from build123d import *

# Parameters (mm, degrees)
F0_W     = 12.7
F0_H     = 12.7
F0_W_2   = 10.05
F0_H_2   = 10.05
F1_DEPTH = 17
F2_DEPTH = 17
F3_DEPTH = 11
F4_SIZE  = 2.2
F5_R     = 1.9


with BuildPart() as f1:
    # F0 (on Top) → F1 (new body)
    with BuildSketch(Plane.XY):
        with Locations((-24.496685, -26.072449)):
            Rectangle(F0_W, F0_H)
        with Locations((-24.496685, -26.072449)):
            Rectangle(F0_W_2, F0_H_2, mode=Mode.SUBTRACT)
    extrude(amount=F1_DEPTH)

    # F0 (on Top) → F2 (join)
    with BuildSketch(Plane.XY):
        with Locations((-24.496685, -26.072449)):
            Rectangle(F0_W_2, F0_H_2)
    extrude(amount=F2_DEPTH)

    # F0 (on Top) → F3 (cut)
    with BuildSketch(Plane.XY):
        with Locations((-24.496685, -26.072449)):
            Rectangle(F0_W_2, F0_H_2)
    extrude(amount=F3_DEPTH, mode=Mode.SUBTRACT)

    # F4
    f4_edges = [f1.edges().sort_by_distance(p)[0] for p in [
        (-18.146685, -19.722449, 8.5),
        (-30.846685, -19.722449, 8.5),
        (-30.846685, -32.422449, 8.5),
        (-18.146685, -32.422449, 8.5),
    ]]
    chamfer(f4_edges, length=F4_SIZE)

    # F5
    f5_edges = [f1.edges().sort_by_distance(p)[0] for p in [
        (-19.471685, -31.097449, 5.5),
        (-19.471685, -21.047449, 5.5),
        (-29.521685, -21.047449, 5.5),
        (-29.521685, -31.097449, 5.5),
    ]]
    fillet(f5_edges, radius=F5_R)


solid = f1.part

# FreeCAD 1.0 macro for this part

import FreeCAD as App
import Part
import Sketcher

V = App.Vector


def edges_at(feature, points):
    """Names of the edges that pass closest to the given points."""
    edges = feature.Shape.Edges
    near = lambda p: min(range(len(edges)), key=lambda i: edges[i].distToShape(Part.Vertex(*p))[0])
    return sorted({f"Edge{near(p) + 1}" for p in points})


def add_polygon(sketch, points):
    """Adds a closed chain of lines whose ends are joined by coincident constraints."""
    first, n = sketch.GeometryCount, len(points)
    for a, b in zip(points, points[1:] + points[:1]):
        sketch.addGeometry(Part.LineSegment(App.Vector(*a, 0), App.Vector(*b, 0)), False)
    for i in range(n):
        sketch.addConstraint(Sketcher.Constraint("Coincident", first + i, 2, first + (i + 1) % n, 1))

doc = App.newDocument("Part")
params = doc.addObject("Spreadsheet::Sheet", "Params")
for row, (alias, value) in enumerate([
    ("sketch1_width", "12.7 mm"),
    ("sketch1_width2", "10.05 mm"),
    ("pad1_length", "17 mm"),
    ("sketch2_width", "10.05 mm"),
    ("pad2_length", "17 mm"),
    ("sketch3_width", "10.05 mm"),
    ("pocket1_length", "11 mm"),
    ("chamfer_size", "2.2 mm"),
    ("fillet_radius", "1.9 mm"),
], start=1):
    params.set(f"A{row}", alias)
    params.set(f"B{row}", "=" + value)
    params.setAlias(f"B{row}", alias)

body = doc.addObject("PartDesign::Body", "Body")

sketch1 = body.newObject("Sketcher::SketchObject", "Sketch")
sketch1.AttachmentSupport = (doc.getObject("XY_Plane"), [""])
sketch1.MapMode = "FlatFace"
add_polygon(sketch1, [(-30.846685, -19.722449), (-30.846685, -32.422449), (-18.146685, -32.422449), (-18.146685, -19.722449)])
add_polygon(sketch1, [(-19.471685, -31.097449), (-29.521685, -31.097449), (-29.521685, -21.047449), (-19.471685, -21.047449)])
sketch1.addConstraint(Sketcher.Constraint("Vertical", 0))
sketch1.addConstraint(Sketcher.Constraint("Horizontal", 1))
sketch1.addConstraint(Sketcher.Constraint("Vertical", 2))
sketch1.addConstraint(Sketcher.Constraint("Horizontal", 3))
sketch1.addConstraint(Sketcher.Constraint("Horizontal", 4))
sketch1.addConstraint(Sketcher.Constraint("Vertical", 5))
sketch1.addConstraint(Sketcher.Constraint("Horizontal", 6))
sketch1.addConstraint(Sketcher.Constraint("Vertical", 7))
sketch1.addConstraint(Sketcher.Constraint("Equal", 3, 0))
sketch1.addConstraint(Sketcher.Constraint("Equal", 6, 5))
sketch1.addConstraint(Sketcher.Constraint("DistanceX", 1, 1, 1, 2, 12.7))
sketch1.addConstraint(Sketcher.Constraint("DistanceX", 4, 2, 4, 1, 10.05))
sketch1.addConstraint(Sketcher.Constraint("DistanceX", 0, 2, 4, 2, 1.325))
sketch1.addConstraint(Sketcher.Constraint("DistanceY", 0, 2, 4, 2, 1.325))
sketch1.addConstraint(Sketcher.Constraint("DistanceY", 0, 2, -1, 1, 32.422449))
sketch1.addConstraint(Sketcher.Constraint("DistanceX", 0, 2, -1, 1, 30.846685))
sketch1.setExpression("Constraints[18]", "Params.sketch1_width")
sketch1.setExpression("Constraints[19]", "Params.sketch1_width2")
pad1 = body.newObject("PartDesign::Pad", "Pad")
pad1.Profile = sketch1
pad1.setExpression("Length", "Params.pad1_length")

sketch2 = body.newObject("Sketcher::SketchObject", "Sketch001")
sketch2.AttachmentSupport = (doc.getObject("XY_Plane"), [""])
sketch2.MapMode = "FlatFace"
add_polygon(sketch2, [(-29.521685, -21.047449), (-29.521685, -31.097449), (-19.471685, -31.097449), (-19.471685, -21.047449)])
sketch2.addConstraint(Sketcher.Constraint("Vertical", 0))
sketch2.addConstraint(Sketcher.Constraint("Horizontal", 1))
sketch2.addConstraint(Sketcher.Constraint("Vertical", 2))
sketch2.addConstraint(Sketcher.Constraint("Horizontal", 3))
sketch2.addConstraint(Sketcher.Constraint("Equal", 3, 0))
sketch2.addConstraint(Sketcher.Constraint("DistanceX", 1, 1, 1, 2, 10.05))
sketch2.addConstraint(Sketcher.Constraint("DistanceY", 0, 2, -1, 1, 31.097449))
sketch2.addConstraint(Sketcher.Constraint("DistanceX", 0, 2, -1, 1, 29.521685))
sketch2.setExpression("Constraints[9]", "Params.sketch2_width")
pad2 = body.newObject("PartDesign::Pad", "Pad001")
pad2.Profile = sketch2
pad2.setExpression("Length", "Params.pad2_length")

sketch3 = body.newObject("Sketcher::SketchObject", "Sketch002")
sketch3.AttachmentSupport = (doc.getObject("XY_Plane"), [""])
sketch3.MapMode = "FlatFace"
add_polygon(sketch3, [(-29.521685, -21.047449), (-29.521685, -31.097449), (-19.471685, -31.097449), (-19.471685, -21.047449)])
sketch3.addConstraint(Sketcher.Constraint("Vertical", 0))
sketch3.addConstraint(Sketcher.Constraint("Horizontal", 1))
sketch3.addConstraint(Sketcher.Constraint("Vertical", 2))
sketch3.addConstraint(Sketcher.Constraint("Horizontal", 3))
sketch3.addConstraint(Sketcher.Constraint("Equal", 3, 0))
sketch3.addConstraint(Sketcher.Constraint("DistanceX", 1, 1, 1, 2, 10.05))
sketch3.addConstraint(Sketcher.Constraint("DistanceY", 0, 2, -1, 1, 31.097449))
sketch3.addConstraint(Sketcher.Constraint("DistanceX", 0, 2, -1, 1, 29.521685))
sketch3.setExpression("Constraints[9]", "Params.sketch3_width")
pocket1 = body.newObject("PartDesign::Pocket", "Pocket")
pocket1.Profile = sketch3
pocket1.setExpression("Length", "Params.pocket1_length")
pocket1.Reversed = True
doc.recompute()

chamfer = body.newObject("PartDesign::Chamfer", "Chamfer")
chamfer.Base = (pocket1, edges_at(pocket1, [
    (-18.147, -19.722, 8.5),
    (-30.847, -19.722, 8.5),
    (-30.847, -32.422, 8.5),
    (-18.147, -32.422, 8.5),
]))
chamfer.setExpression("Size", "Params.chamfer_size")
doc.recompute()

fillet = body.newObject("PartDesign::Fillet", "Fillet")
fillet.Base = (chamfer, edges_at(chamfer, [
    (-19.472, -31.097, 5.5),
    (-19.472, -21.047, 5.5),
    (-29.522, -21.047, 5.5),
    (-29.522, -31.097, 5.5),
]))
fillet.setExpression("Radius", "Params.fillet_radius")

doc.recompute()
